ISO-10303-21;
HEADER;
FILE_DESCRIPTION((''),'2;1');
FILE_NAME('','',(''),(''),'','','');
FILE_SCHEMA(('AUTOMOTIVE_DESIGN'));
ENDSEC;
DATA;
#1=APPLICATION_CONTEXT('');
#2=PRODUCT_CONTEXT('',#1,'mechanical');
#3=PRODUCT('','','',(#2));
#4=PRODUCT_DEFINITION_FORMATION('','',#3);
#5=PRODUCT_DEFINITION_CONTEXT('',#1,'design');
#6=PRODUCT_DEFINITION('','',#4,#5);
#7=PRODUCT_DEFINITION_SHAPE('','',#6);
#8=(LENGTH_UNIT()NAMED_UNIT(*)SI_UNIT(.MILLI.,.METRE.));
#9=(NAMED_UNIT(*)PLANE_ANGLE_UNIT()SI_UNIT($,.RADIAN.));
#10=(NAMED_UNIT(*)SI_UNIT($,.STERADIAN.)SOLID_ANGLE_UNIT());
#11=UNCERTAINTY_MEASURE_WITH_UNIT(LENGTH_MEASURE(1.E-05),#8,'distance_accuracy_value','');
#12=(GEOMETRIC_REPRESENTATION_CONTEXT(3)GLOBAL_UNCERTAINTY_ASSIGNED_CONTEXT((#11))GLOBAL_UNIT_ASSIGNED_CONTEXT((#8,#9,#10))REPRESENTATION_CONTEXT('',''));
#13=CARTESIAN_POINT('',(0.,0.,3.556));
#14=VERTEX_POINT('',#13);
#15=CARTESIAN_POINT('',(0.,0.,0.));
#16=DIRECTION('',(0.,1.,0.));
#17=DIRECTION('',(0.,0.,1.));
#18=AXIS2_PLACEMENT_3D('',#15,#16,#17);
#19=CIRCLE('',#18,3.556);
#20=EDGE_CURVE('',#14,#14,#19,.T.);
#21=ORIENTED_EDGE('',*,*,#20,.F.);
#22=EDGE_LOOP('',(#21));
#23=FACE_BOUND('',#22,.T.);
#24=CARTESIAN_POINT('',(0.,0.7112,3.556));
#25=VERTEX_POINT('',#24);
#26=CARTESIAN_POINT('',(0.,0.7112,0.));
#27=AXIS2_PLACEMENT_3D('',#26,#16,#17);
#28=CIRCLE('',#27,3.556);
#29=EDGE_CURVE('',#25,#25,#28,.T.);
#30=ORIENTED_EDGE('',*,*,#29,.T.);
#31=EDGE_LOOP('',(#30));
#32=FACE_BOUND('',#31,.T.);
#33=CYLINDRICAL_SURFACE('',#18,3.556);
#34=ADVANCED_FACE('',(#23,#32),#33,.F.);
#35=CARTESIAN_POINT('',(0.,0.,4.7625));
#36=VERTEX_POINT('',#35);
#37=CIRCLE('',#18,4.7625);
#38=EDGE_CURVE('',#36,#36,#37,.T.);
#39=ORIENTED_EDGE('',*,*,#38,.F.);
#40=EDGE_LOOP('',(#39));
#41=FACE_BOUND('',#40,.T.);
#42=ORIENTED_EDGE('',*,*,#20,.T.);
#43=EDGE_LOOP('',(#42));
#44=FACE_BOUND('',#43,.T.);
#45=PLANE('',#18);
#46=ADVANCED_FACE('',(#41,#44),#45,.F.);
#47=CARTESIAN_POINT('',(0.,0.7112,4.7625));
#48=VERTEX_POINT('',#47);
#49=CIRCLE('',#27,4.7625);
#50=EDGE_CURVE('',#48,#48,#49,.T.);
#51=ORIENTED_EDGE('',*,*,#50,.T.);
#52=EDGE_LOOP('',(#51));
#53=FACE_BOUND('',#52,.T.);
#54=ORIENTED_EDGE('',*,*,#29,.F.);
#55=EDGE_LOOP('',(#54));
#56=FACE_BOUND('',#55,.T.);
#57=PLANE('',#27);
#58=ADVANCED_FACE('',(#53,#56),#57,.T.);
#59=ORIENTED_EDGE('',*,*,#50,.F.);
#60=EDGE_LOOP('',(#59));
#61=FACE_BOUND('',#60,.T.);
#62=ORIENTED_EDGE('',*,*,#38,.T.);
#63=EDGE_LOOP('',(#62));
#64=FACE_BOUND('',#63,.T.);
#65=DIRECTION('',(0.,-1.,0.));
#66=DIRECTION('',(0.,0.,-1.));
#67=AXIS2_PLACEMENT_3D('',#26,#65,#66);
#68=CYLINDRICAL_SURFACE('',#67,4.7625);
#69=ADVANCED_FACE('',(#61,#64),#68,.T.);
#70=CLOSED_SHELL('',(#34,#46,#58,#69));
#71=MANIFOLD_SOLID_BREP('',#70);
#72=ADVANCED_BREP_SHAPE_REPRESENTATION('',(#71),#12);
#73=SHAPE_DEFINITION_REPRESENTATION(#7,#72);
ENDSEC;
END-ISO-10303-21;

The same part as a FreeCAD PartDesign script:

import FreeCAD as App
import Part
import Sketcher
Q = App.Units.Quantity

doc = App.newDocument("Part")
body = doc.addObject("PartDesign::Body", "Body")

# Sketch on XZ plane
sketch1 = body.newObject("Sketcher::SketchObject", "Sketch")
sketch1.AttachmentSupport = (doc.getObject("XZ_Plane"), [""])
sketch1.MapMode = "FlatFace"
sketch1.addGeometry(Part.Circle(App.Vector(0, 0, 0), App.Vector(0, 0, 1), 4.8), False)
sketch1.addConstraint([
    Sketcher.Constraint("Coincident", 0, 3, -1, 1),
    Sketcher.Constraint("Diameter", 0, Q("0.375 in")),
])
pad1 = body.newObject("PartDesign::Pad", "Pad")
pad1.Profile = sketch1
pad1.Length = Q("0.028 in")
pad1.Reversed = True

# Sketch on XZ plane
sketch2 = body.newObject("Sketcher::SketchObject", "Sketch001")
sketch2.AttachmentSupport = (doc.getObject("XZ_Plane"), [""])
sketch2.MapMode = "FlatFace"
sketch2.AttachmentOffset = App.Placement(App.Vector(0, 0, -0.028 * 25.4), App.Rotation())
sketch2.addGeometry(Part.Circle(App.Vector(0, 0, 0), App.Vector(0, 0, 1), 3.6), False)
sketch2.addConstraint([
    Sketcher.Constraint("Coincident", 0, 3, -1, 1),
    Sketcher.Constraint("Diameter", 0, Q("0.28 in")),
])
pocket1 = body.newObject("PartDesign::Pocket", "Pocket")
pocket1.Profile = sketch2
pocket1.Type = "ThroughAll"
pocket1.Reversed = True

doc.recompute()
